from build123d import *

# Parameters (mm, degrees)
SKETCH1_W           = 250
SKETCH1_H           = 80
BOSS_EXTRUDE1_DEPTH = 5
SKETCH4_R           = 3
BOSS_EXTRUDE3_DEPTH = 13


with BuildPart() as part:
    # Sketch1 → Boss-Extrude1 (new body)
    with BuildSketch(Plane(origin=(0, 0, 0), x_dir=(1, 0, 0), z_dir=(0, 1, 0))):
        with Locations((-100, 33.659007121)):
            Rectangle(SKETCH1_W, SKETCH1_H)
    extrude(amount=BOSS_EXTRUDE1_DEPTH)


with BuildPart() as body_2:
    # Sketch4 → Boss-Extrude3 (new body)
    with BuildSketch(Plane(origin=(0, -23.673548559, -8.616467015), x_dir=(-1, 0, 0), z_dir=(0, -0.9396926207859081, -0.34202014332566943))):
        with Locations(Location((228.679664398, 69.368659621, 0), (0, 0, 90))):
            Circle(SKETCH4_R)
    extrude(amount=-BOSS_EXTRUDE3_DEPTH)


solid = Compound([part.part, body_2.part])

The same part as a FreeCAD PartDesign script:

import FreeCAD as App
import Part
import Sketcher
from FreeCAD import Vector


def add_polygon(sketch, points):
    """Adds a closed chain of lines whose ends are joined by coincident constraints."""
    first, n = sketch.GeometryCount, len(points)
    for a, b in zip(points, points[1:] + points[:1]):
        sketch.addGeometry(Part.LineSegment(App.Vector(*a, 0), App.Vector(*b, 0)), False)
    for i in range(n):
        sketch.addConstraint(Sketcher.Constraint("Coincident", first + i, 2, first + (i + 1) % n, 1))

doc = App.newDocument("Part")
body = doc.addObject("PartDesign::Body", "Body")

sketch1 = body.newObject("Sketcher::SketchObject", "Sketch")
sketch1.AttachmentSupport = (doc.getObject("XZ_Plane"), [""])
sketch1.MapMode = "FlatFace"
add_polygon(sketch1, [(-225, -74), (-225, 6), (25, 6), (25, -74)])
sketch1.addConstraint([
    Sketcher.Constraint("Vertical", 0),
    Sketcher.Constraint("Horizontal", 1),
    Sketcher.Constraint("Vertical", 2),
    Sketcher.Constraint("Horizontal", 3),
    Sketcher.Constraint("DistanceX", 1, 1, 1, 2, 250.0),
    Sketcher.Constraint("DistanceY", 0, 1, 0, 2, 80.0),
    Sketcher.Constraint("DistanceX", 0, 2, -1, 1, 225.0),
    Sketcher.Constraint("DistanceY", -1, 1, 0, 2, 6.340993),
])
pad1 = body.newObject("PartDesign::Pad", "Pad")
pad1.Profile = sketch1
pad1.Length = 5
pad1.Reversed = True
body2 = doc.addObject("PartDesign::Body", "Body001")

sketch2 = body2.newObject("Sketcher::SketchObject", "Sketch001")
sketch2.Placement = App.Placement(Vector(0, -23.673549, -8.616467), App.Rotation(Vector(-1, 0, 0), Vector(0, 0.342020143, -0.939692621), Vector(0, -0.939692621, -0.342020143), "ZXY"))
sketch2.addGeometry(Part.Circle(Vector(228.7, 69.4, 0), Vector(0, 0, 1), 3), False)
sketch2.addConstraint([
    Sketcher.Constraint("Diameter", 0, 6.0),
    Sketcher.Constraint("DistanceY", -1, 1, 0, 3, 69.36866),
    Sketcher.Constraint("DistanceX", -1, 1, 0, 3, 228.679664),
])
pad2 = body2.newObject("PartDesign::Pad", "Pad001")
pad2.Profile = sketch2
pad2.Length = 13
pad2.Reversed = True

doc.recompute()
